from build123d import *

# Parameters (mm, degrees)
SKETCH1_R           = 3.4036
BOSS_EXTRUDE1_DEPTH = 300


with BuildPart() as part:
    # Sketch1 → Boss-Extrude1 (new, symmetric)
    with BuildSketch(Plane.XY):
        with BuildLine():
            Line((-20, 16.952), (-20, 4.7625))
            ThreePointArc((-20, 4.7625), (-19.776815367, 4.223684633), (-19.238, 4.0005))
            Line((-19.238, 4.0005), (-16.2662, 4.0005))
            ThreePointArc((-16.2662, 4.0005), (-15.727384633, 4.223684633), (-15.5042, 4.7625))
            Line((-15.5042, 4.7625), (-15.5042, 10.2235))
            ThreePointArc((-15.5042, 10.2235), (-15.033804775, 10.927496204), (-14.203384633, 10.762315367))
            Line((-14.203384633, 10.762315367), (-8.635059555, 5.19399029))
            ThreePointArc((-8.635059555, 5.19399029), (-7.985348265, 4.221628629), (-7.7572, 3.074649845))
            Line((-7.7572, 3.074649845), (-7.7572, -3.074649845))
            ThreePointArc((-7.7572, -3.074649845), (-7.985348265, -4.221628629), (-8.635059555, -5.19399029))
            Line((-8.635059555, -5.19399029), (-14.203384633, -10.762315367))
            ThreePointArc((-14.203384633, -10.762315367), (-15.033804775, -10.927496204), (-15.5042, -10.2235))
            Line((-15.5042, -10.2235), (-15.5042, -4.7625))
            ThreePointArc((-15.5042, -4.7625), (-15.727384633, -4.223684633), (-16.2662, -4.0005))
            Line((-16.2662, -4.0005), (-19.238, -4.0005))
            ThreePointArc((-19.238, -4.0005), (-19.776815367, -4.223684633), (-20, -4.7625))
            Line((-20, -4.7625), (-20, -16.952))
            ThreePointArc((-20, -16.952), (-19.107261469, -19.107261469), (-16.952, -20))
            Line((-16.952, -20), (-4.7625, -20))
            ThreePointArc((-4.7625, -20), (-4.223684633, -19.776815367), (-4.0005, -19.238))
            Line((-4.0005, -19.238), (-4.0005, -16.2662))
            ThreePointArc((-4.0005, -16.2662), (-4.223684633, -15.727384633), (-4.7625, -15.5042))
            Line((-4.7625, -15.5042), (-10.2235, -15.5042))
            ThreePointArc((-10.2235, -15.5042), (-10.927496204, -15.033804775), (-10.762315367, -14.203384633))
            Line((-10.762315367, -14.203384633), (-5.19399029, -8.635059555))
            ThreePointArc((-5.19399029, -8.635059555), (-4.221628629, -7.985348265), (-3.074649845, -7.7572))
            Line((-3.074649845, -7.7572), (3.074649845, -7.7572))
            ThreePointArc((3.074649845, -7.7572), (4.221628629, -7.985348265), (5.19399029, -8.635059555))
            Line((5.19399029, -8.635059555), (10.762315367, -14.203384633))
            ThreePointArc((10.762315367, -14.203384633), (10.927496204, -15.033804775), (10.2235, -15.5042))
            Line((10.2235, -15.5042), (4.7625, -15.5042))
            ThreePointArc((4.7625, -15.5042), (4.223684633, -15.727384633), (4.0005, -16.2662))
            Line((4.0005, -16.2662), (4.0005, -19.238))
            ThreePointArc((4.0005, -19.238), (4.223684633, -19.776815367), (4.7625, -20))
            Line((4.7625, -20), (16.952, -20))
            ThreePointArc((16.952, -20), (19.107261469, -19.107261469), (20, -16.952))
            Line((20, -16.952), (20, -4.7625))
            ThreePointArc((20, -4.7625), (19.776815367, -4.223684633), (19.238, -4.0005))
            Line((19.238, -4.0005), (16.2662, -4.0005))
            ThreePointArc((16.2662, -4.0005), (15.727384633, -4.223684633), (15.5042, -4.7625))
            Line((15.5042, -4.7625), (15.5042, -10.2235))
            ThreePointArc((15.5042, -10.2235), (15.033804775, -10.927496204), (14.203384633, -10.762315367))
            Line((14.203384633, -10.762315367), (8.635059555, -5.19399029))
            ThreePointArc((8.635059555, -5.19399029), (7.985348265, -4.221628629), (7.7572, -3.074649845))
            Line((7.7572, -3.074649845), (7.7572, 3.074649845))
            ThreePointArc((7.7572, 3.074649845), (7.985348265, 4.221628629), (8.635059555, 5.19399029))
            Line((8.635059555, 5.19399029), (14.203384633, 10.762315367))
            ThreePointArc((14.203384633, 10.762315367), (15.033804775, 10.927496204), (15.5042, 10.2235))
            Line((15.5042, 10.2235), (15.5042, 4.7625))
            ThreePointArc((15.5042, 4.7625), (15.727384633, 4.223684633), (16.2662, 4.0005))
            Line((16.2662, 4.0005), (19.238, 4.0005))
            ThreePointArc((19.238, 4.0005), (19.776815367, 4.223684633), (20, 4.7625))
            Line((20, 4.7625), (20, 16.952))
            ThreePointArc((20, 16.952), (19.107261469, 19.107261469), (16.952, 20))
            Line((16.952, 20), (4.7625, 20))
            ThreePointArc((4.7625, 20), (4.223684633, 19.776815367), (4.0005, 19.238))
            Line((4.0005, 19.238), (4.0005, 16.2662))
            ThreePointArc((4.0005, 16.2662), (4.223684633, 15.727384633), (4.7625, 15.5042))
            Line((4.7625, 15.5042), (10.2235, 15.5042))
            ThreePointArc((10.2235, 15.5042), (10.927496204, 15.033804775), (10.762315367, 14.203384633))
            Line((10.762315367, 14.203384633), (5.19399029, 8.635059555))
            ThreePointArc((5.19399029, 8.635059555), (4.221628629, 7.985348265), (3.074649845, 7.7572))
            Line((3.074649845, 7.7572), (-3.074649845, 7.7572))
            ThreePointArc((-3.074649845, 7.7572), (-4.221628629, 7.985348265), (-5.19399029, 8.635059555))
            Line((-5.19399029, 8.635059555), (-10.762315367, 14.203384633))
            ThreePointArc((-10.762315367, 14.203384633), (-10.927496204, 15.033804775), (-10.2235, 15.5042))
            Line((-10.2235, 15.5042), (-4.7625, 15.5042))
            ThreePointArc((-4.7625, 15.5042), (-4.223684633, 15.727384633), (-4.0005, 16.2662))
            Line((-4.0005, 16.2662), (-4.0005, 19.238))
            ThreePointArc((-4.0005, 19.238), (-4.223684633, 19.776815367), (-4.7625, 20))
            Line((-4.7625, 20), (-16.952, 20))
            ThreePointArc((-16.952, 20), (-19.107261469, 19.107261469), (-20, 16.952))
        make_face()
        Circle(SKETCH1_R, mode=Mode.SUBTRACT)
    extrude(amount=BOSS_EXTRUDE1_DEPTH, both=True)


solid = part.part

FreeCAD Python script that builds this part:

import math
import FreeCAD as App
import Part
import Sketcher
from FreeCAD import Vector
Q = App.Units.Quantity

doc = App.newDocument("Part")
params = doc.addObject("Spreadsheet::Sheet", "Params")
for row, (alias, value) in enumerate([
    ("sketch1_radius", "0.03 in"),
    ("sketch1_radius2", "0.12 in"),
    ("sketch1_diameter", "0.268 in"),
    ("sketch1_radius3", "0.118 in"),
    ("sketch1_width", "0.117 in"),
    ("pad1_length", "600 mm"),
], start=1):
    params.set(f"A{row}", alias)
    params.set(f"B{row}", "=" + value)
    params.setAlias(f"B{row}", alias)

body = doc.addObject("PartDesign::Body", "Body")

# Sketch on XY plane
sketch1 = body.newObject("Sketcher::SketchObject", "Sketch")
sketch1.AttachmentSupport = (doc.getObject("XY_Plane"), [""])
sketch1.MapMode = "FlatFace"
sketch1.addGeometry([
    Part.LineSegment(Vector(-20, 17, 0), Vector(-20, 4.8, 0)),  # 0
    Part.ArcOfCircle(Part.Circle(Vector(-19.2, 4.8, 0), Vector(0, 0, 1), 0.8), math.radians(-180), math.radians(-90)),  # 1
    Part.LineSegment(Vector(-19.2, 4, 0), Vector(-16.3, 4, 0)),  # 2
    Part.ArcOfCircle(Part.Circle(Vector(-16.3, 4.8, 0), Vector(0, 0, 1), 0.8), math.radians(-90), math.radians(0)),  # 3
    Part.LineSegment(Vector(-15.5, 4.8, 0), Vector(-15.5, 10.2, 0)),  # 4
    Part.ArcOfCircle(Part.Circle(Vector(-14.7, 10.2, 0), Vector(0, 0, 1), 0.8), math.radians(45), math.radians(180)),  # 5
    Part.LineSegment(Vector(-14.2, 10.8, 0), Vector(-8.6, 5.2, 0)),  # 6
    Part.ArcOfCircle(Part.Circle(Vector(-10.8, 3.1, 0), Vector(0, 0, 1), 3), math.radians(0), math.radians(45)),  # 7
    Part.LineSegment(Vector(-7.8, 3.1, 0), Vector(-7.8, -3.1, 0)),  # 8
    Part.ArcOfCircle(Part.Circle(Vector(-10.8, -3.1, 0), Vector(0, 0, 1), 3), math.radians(-45), math.radians(0)),  # 9
    Part.LineSegment(Vector(-8.6, -5.2, 0), Vector(-14.2, -10.8, 0)),  # 10
    Part.ArcOfCircle(Part.Circle(Vector(-14.7, -10.2, 0), Vector(0, 0, 1), 0.8), math.radians(180), math.radians(315)),  # 11
    Part.LineSegment(Vector(-15.5, -10.2, 0), Vector(-15.5, -4.8, 0)),  # 12
    Part.ArcOfCircle(Part.Circle(Vector(-16.3, -4.8, 0), Vector(0, 0, 1), 0.8), math.radians(0), math.radians(90)),  # 13
    Part.LineSegment(Vector(-16.3, -4, 0), Vector(-19.2, -4, 0)),  # 14
    Part.ArcOfCircle(Part.Circle(Vector(-19.2, -4.8, 0), Vector(0, 0, 1), 0.8), math.radians(90), math.radians(180)),  # 15
    Part.LineSegment(Vector(-20, -4.8, 0), Vector(-20, -17, 0)),  # 16
    Part.ArcOfCircle(Part.Circle(Vector(-17, -17, 0), Vector(0, 0, 1), 3), math.radians(180), math.radians(270)),  # 17
    Part.LineSegment(Vector(-17, -20, 0), Vector(-4.8, -20, 0)),  # 18
    Part.ArcOfCircle(Part.Circle(Vector(-4.8, -19.2, 0), Vector(0, 0, 1), 0.8), math.radians(-90), math.radians(0)),  # 19
    Part.LineSegment(Vector(-4, -19.2, 0), Vector(-4, -16.3, 0)),  # 20
    Part.ArcOfCircle(Part.Circle(Vector(-4.8, -16.3, 0), Vector(0, 0, 1), 0.8), math.radians(0), math.radians(90)),  # 21
    Part.LineSegment(Vector(-4.8, -15.5, 0), Vector(-10.2, -15.5, 0)),  # 22
    Part.ArcOfCircle(Part.Circle(Vector(-10.2, -14.7, 0), Vector(0, 0, 1), 0.8), math.radians(135), math.radians(270)),  # 23
    Part.LineSegment(Vector(-10.8, -14.2, 0), Vector(-5.2, -8.6, 0)),  # 24
    Part.ArcOfCircle(Part.Circle(Vector(-3.1, -10.8, 0), Vector(0, 0, 1), 3), math.radians(90), math.radians(135)),  # 25
    Part.LineSegment(Vector(-3.1, -7.8, 0), Vector(3.1, -7.8, 0)),  # 26
    Part.ArcOfCircle(Part.Circle(Vector(3.1, -10.8, 0), Vector(0, 0, 1), 3), math.radians(45), math.radians(90)),  # 27
    Part.LineSegment(Vector(5.2, -8.6, 0), Vector(10.8, -14.2, 0)),  # 28
    Part.ArcOfCircle(Part.Circle(Vector(10.2, -14.7, 0), Vector(0, 0, 1), 0.8), math.radians(-90), math.radians(45)),  # 29
    Part.LineSegment(Vector(10.2, -15.5, 0), Vector(4.8, -15.5, 0)),  # 30
    Part.ArcOfCircle(Part.Circle(Vector(4.8, -16.3, 0), Vector(0, 0, 1), 0.8), math.radians(90), math.radians(180)),  # 31
    Part.LineSegment(Vector(4, -16.3, 0), Vector(4, -19.2, 0)),  # 32
    Part.ArcOfCircle(Part.Circle(Vector(4.8, -19.2, 0), Vector(0, 0, 1), 0.8), math.radians(-180), math.radians(-90)),  # 33
    Part.LineSegment(Vector(4.8, -20, 0), Vector(17, -20, 0)),  # 34
    Part.ArcOfCircle(Part.Circle(Vector(17, -17, 0), Vector(0, 0, 1), 3), math.radians(-90), math.radians(0)),  # 35
    Part.LineSegment(Vector(20, -17, 0), Vector(20, -4.8, 0)),  # 36
    Part.ArcOfCircle(Part.Circle(Vector(19.2, -4.8, 0), Vector(0, 0, 1), 0.8), math.radians(0), math.radians(90)),  # 37
    Part.LineSegment(Vector(19.2, -4, 0), Vector(16.3, -4, 0)),  # 38
    Part.ArcOfCircle(Part.Circle(Vector(16.3, -4.8, 0), Vector(0, 0, 1), 0.8), math.radians(90), math.radians(180)),  # 39
    Part.LineSegment(Vector(15.5, -4.8, 0), Vector(15.5, -10.2, 0)),  # 40
    Part.ArcOfCircle(Part.Circle(Vector(14.7, -10.2, 0), Vector(0, 0, 1), 0.8), math.radians(-135), math.radians(0)),  # 41
    Part.LineSegment(Vector(14.2, -10.8, 0), Vector(8.6, -5.2, 0)),  # 42
    Part.ArcOfCircle(Part.Circle(Vector(10.8, -3.1, 0), Vector(0, 0, 1), 3), math.radians(180), math.radians(225)),  # 43
    Part.LineSegment(Vector(7.8, -3.1, 0), Vector(7.8, 3.1, 0)),  # 44
    Part.ArcOfCircle(Part.Circle(Vector(10.8, 3.1, 0), Vector(0, 0, 1), 3), math.radians(135), math.radians(180)),  # 45
    Part.LineSegment(Vector(8.6, 5.2, 0), Vector(14.2, 10.8, 0)),  # 46
    Part.ArcOfCircle(Part.Circle(Vector(14.7, 10.2, 0), Vector(0, 0, 1), 0.8), math.radians(0), math.radians(135)),  # 47
    Part.LineSegment(Vector(15.5, 10.2, 0), Vector(15.5, 4.8, 0)),  # 48
    Part.ArcOfCircle(Part.Circle(Vector(16.3, 4.8, 0), Vector(0, 0, 1), 0.8), math.radians(-180), math.radians(-90)),  # 49
    Part.LineSegment(Vector(16.3, 4, 0), Vector(19.2, 4, 0)),  # 50
    Part.ArcOfCircle(Part.Circle(Vector(19.2, 4.8, 0), Vector(0, 0, 1), 0.8), math.radians(-90), math.radians(0)),  # 51
    Part.LineSegment(Vector(20, 4.8, 0), Vector(20, 17, 0)),  # 52
    Part.ArcOfCircle(Part.Circle(Vector(17, 17, 0), Vector(0, 0, 1), 3), math.radians(0), math.radians(90)),  # 53
    Part.LineSegment(Vector(17, 20, 0), Vector(4.8, 20, 0)),  # 54
    Part.ArcOfCircle(Part.Circle(Vector(4.8, 19.2, 0), Vector(0, 0, 1), 0.8), math.radians(90), math.radians(180)),  # 55
    Part.LineSegment(Vector(4, 19.2, 0), Vector(4, 16.3, 0)),  # 56
    Part.ArcOfCircle(Part.Circle(Vector(4.8, 16.3, 0), Vector(0, 0, 1), 0.8), math.radians(-180), math.radians(-90)),  # 57
    Part.LineSegment(Vector(4.8, 15.5, 0), Vector(10.2, 15.5, 0)),  # 58
    Part.ArcOfCircle(Part.Circle(Vector(10.2, 14.7, 0), Vector(0, 0, 1), 0.8), math.radians(-45), math.radians(90)),  # 59
    Part.LineSegment(Vector(10.8, 14.2, 0), Vector(5.2, 8.6, 0)),  # 60
    Part.ArcOfCircle(Part.Circle(Vector(3.1, 10.8, 0), Vector(0, 0, 1), 3), math.radians(-90), math.radians(-45)),  # 61
    Part.LineSegment(Vector(3.1, 7.8, 0), Vector(-3.1, 7.8, 0)),  # 62
    Part.ArcOfCircle(Part.Circle(Vector(-3.1, 10.8, 0), Vector(0, 0, 1), 3), math.radians(-135), math.radians(-90)),  # 63
    Part.LineSegment(Vector(-5.2, 8.6, 0), Vector(-10.8, 14.2, 0)),  # 64
    Part.ArcOfCircle(Part.Circle(Vector(-10.2, 14.7, 0), Vector(0, 0, 1), 0.8), math.radians(90), math.radians(225)),  # 65
    Part.LineSegment(Vector(-10.2, 15.5, 0), Vector(-4.8, 15.5, 0)),  # 66
    Part.ArcOfCircle(Part.Circle(Vector(-4.8, 16.3, 0), Vector(0, 0, 1), 0.8), math.radians(-90), math.radians(0)),  # 67
    Part.LineSegment(Vector(-4, 16.3, 0), Vector(-4, 19.2, 0)),  # 68
    Part.ArcOfCircle(Part.Circle(Vector(-4.8, 19.2, 0), Vector(0, 0, 1), 0.8), math.radians(0), math.radians(90)),  # 69
    Part.LineSegment(Vector(-4.8, 20, 0), Vector(-17, 20, 0)),  # 70
    Part.ArcOfCircle(Part.Circle(Vector(-17, 17, 0), Vector(0, 0, 1), 3), math.radians(90), math.radians(180)),  # 71
    Part.Circle(Vector(0, 0, 0), Vector(0, 0, 1), 3.4),  # 72
], False)
sketch1.addConstraint([
    Sketcher.Constraint("Tangent", 0, 2, 1, 1),
    Sketcher.Constraint("Tangent", 1, 2, 2, 1),
    Sketcher.Constraint("Tangent", 2, 2, 3, 1),
    Sketcher.Constraint("Tangent", 3, 2, 4, 1),
    Sketcher.Constraint("Tangent", 4, 2, 5, 2),
    Sketcher.Constraint("Tangent", 5, 1, 6, 1),
    Sketcher.Constraint("Tangent", 6, 2, 7, 2),
    Sketcher.Constraint("Tangent", 7, 1, 8, 1),
    Sketcher.Constraint("Tangent", 8, 2, 9, 2),
    Sketcher.Constraint("Tangent", 9, 1, 10, 1),
    Sketcher.Constraint("Tangent", 10, 2, 11, 2),
    Sketcher.Constraint("Tangent", 11, 1, 12, 1),
    Sketcher.Constraint("Tangent", 12, 2, 13, 1),
    Sketcher.Constraint("Tangent", 13, 2, 14, 1),
    Sketcher.Constraint("Tangent", 14, 2, 15, 1),
    Sketcher.Constraint("Tangent", 15, 2, 16, 1),
    Sketcher.Constraint("Tangent", 16, 2, 17, 1),
    Sketcher.Constraint("Tangent", 17, 2, 18, 1),
    Sketcher.Constraint("Tangent", 18, 2, 19, 1),
    Sketcher.Constraint("Tangent", 19, 2, 20, 1),
    Sketcher.Constraint("Tangent", 20, 2, 21, 1),
    Sketcher.Constraint("Tangent", 21, 2, 22, 1),
    Sketcher.Constraint("Tangent", 22, 2, 23, 2),
    Sketcher.Constraint("Tangent", 23, 1, 24, 1),
    Sketcher.Constraint("Tangent", 24, 2, 25, 2),
    Sketcher.Constraint("Tangent", 25, 1, 26, 1),
    Sketcher.Constraint("Tangent", 26, 2, 27, 2),
    Sketcher.Constraint("Tangent", 27, 1, 28, 1),
    Sketcher.Constraint("Tangent", 28, 2, 29, 2),
    Sketcher.Constraint("Tangent", 29, 1, 30, 1),
    Sketcher.Constraint("Tangent", 30, 2, 31, 1),
    Sketcher.Constraint("Tangent", 31, 2, 32, 1),
    Sketcher.Constraint("Tangent", 32, 2, 33, 1),
    Sketcher.Constraint("Tangent", 33, 2, 34, 1),
    Sketcher.Constraint("Tangent", 34, 2, 35, 1),
    Sketcher.Constraint("Tangent", 35, 2, 36, 1),
    Sketcher.Constraint("Tangent", 36, 2, 37, 1),
    Sketcher.Constraint("Tangent", 37, 2, 38, 1),
    Sketcher.Constraint("Tangent", 38, 2, 39, 1),
    Sketcher.Constraint("Tangent", 39, 2, 40, 1),
    Sketcher.Constraint("Tangent", 40, 2, 41, 2),
    Sketcher.Constraint("Tangent", 41, 1, 42, 1),
    Sketcher.Constraint("Tangent", 42, 2, 43, 2),
    Sketcher.Constraint("Tangent", 43, 1, 44, 1),
    Sketcher.Constraint("Tangent", 44, 2, 45, 2),
    Sketcher.Constraint("Tangent", 45, 1, 46, 1),
    Sketcher.Constraint("Tangent", 46, 2, 47, 2),
    Sketcher.Constraint("Tangent", 47, 1, 48, 1),
    Sketcher.Constraint("Tangent", 48, 2, 49, 1),
    Sketcher.Constraint("Tangent", 49, 2, 50, 1),
    Sketcher.Constraint("Tangent", 50, 2, 51, 1),
    Sketcher.Constraint("Tangent", 51, 2, 52, 1),
    Sketcher.Constraint("Tangent", 52, 2, 53, 1),
    Sketcher.Constraint("Tangent", 53, 2, 54, 1),
    Sketcher.Constraint("Tangent", 54, 2, 55, 1),
    Sketcher.Constraint("Tangent", 55, 2, 56, 1),
    Sketcher.Constraint("Tangent", 56, 2, 57, 1),
    Sketcher.Constraint("Tangent", 57, 2, 58, 1),
    Sketcher.Constraint("Tangent", 58, 2, 59, 2),
    Sketcher.Constraint("Tangent", 59, 1, 60, 1),
    Sketcher.Constraint("Tangent", 60, 2, 61, 2),
    Sketcher.Constraint("Tangent", 61, 1, 62, 1),
    Sketcher.Constraint("Tangent", 62, 2, 63, 2),
    Sketcher.Constraint("Tangent", 63, 1, 64, 1),
    Sketcher.Constraint("Tangent", 64, 2, 65, 2),
    Sketcher.Constraint("Tangent", 65, 1, 66, 1),
    Sketcher.Constraint("Tangent", 66, 2, 67, 1),
    Sketcher.Constraint("Tangent", 67, 2, 68, 1),
    Sketcher.Constraint("Tangent", 68, 2, 69, 1),
    Sketcher.Constraint("Tangent", 69, 2, 70, 1),
    Sketcher.Constraint("Tangent", 70, 2, 71, 1),
    Sketcher.Constraint("Tangent", 71, 2, 0, 1),
    Sketcher.Constraint("Vertical", 0),
    Sketcher.Constraint("Horizontal", 2),
    Sketcher.Constraint("Vertical", 4),
    Sketcher.Constraint("Vertical", 8),
    Sketcher.Constraint("Vertical", 12),
    Sketcher.Constraint("Horizontal", 14),
    Sketcher.Constraint("Vertical", 16),
    Sketcher.Constraint("Horizontal", 18),
    Sketcher.Constraint("Vertical", 20),
    Sketcher.Constraint("Horizontal", 22),
    Sketcher.Constraint("Horizontal", 26),
    Sketcher.Constraint("Horizontal", 30),
    Sketcher.Constraint("Vertical", 32),
    Sketcher.Constraint("Horizontal", 34),
    Sketcher.Constraint("Vertical", 36),
    Sketcher.Constraint("Horizontal", 38),
    Sketcher.Constraint("Vertical", 40),
    Sketcher.Constraint("Vertical", 44),
    Sketcher.Constraint("Vertical", 48),
    Sketcher.Constraint("Horizontal", 50),
    Sketcher.Constraint("Vertical", 52),
    Sketcher.Constraint("Horizontal", 54),
    Sketcher.Constraint("Vertical", 56),
    Sketcher.Constraint("Horizontal", 58),
    Sketcher.Constraint("Horizontal", 62),
    Sketcher.Constraint("Horizontal", 66),
    Sketcher.Constraint("Vertical", 68),
    Sketcher.Constraint("Horizontal", 70),
    Sketcher.Constraint("Coincident", 72, 3, -1, 1),
    Sketcher.Constraint("Equal", 1, 3),
    Sketcher.Constraint("Equal", 3, 5),
    Sketcher.Constraint("Equal", 7, 9),
    Sketcher.Constraint("Equal", 5, 11),
    Sketcher.Constraint("Equal", 11, 13),
    Sketcher.Constraint("Equal", 13, 15),
    Sketcher.Constraint("Equal", 15, 19),
    Sketcher.Constraint("Equal", 19, 21),
    Sketcher.Constraint("Equal", 21, 23),
    Sketcher.Constraint("Equal", 9, 25),
    Sketcher.Constraint("Equal", 25, 27),
    Sketcher.Constraint("Equal", 23, 29),
    Sketcher.Constraint("Equal", 29, 31),
    Sketcher.Constraint("Equal", 31, 33),
    Sketcher.Constraint("Equal", 17, 35),
    Sketcher.Constraint("Equal", 33, 37),
    Sketcher.Constraint("Equal", 37, 39),
    Sketcher.Constraint("Equal", 39, 41),
    Sketcher.Constraint("Equal", 27, 43),
    Sketcher.Constraint("Equal", 43, 45),
    Sketcher.Constraint("Equal", 41, 47),
    Sketcher.Constraint("Equal", 47, 49),
    Sketcher.Constraint("Equal", 49, 51),
    Sketcher.Constraint("Equal", 35, 53),
    Sketcher.Constraint("Equal", 51, 55),
    Sketcher.Constraint("Equal", 55, 57),
    Sketcher.Constraint("Equal", 57, 59),
    Sketcher.Constraint("Equal", 45, 61),
    Sketcher.Constraint("Equal", 61, 63),
    Sketcher.Constraint("Equal", 59, 65),
    Sketcher.Constraint("Equal", 65, 67),
    Sketcher.Constraint("Equal", 67, 69),
    Sketcher.Constraint("Equal", 53, 71),
    Sketcher.Constraint("Symmetric", 1, 3, 37, 3, -1, 1),
    Sketcher.Constraint("Symmetric", 5, 3, 41, 3, -1, 1),
    Sketcher.Constraint("Symmetric", 7, 3, 43, 3, -1, 1),
    Sketcher.Constraint("Symmetric", 11, 3, 47, 3, -1, 1),
    Sketcher.Constraint("Symmetric", 15, 3, 51, 3, -1, 1),
    Sketcher.Constraint("Symmetric", 19, 3, 55, 3, -1, 1),
    Sketcher.Constraint("Symmetric", 23, 3, 59, 3, -1, 1),
    Sketcher.Constraint("Symmetric", 25, 3, 61, 3, -1, 1),
    Sketcher.Constraint("Symmetric", 29, 3, 65, 3, -1, 1),
    Sketcher.Constraint("Symmetric", 33, 3, 69, 3, -1, 1),
    Sketcher.Constraint("Symmetric", 23, 3, 29, 3, -2),
    Sketcher.Constraint("Symmetric", 19, 3, 33, 3, -2),
    Sketcher.Constraint("Symmetric", 15, 3, 37, 3, -2),
    Sketcher.Constraint("Symmetric", 11, 3, 41, 3, -2),
    Sketcher.Constraint("Perpendicular", 6, 10),
    Sketcher.Constraint("Parallel", 10, 24),
    Sketcher.Constraint("Perpendicular", 24, 28),
    Sketcher.Constraint("Perpendicular", 42, 46),
    Sketcher.Constraint("Perpendicular", 60, 64),
    Sketcher.Constraint("Horizontal", 9, 3, 43, 3),
    Sketcher.Constraint("Equal", 70, 0),
    Sketcher.Constraint("Equal", 66, 4),
    Sketcher.Constraint("Equal", 62, 8),
    Sketcher.Constraint("Equal", 50, 20),
    Sketcher.Constraint("Equal", 10, 24),
    Sketcher.Constraint("Radius", 1, Q("0.03 in")),
    Sketcher.Constraint("Radius", 17, Q("0.12 in")),
    Sketcher.Constraint("Diameter", 72, Q("0.268 in")),
    Sketcher.Constraint("Radius", 7, Q("0.118 in")),
    Sketcher.Constraint("DistanceX", 2, 1, 2, 2, Q("0.117 in")),
    Sketcher.Constraint("DistanceX", 22, 2, 22, 1, Q("0.215 in")),
    Sketcher.Constraint("DistanceY", -1, 1, 1, 3, Q("0.1875 in")),
    Sketcher.Constraint("DistanceX", 18, 1, 18, 2, Q("12.1895 mm")),
    Sketcher.Constraint("DistanceX", 26, 1, 26, 2, Q("6.1493 mm")),
])
sketch1.setExpression("Constraints[159]", "Params.sketch1_radius")
sketch1.setExpression("Constraints[160]", "Params.sketch1_radius2")
sketch1.setExpression("Constraints[161]", "Params.sketch1_diameter")
sketch1.setExpression("Constraints[162]", "Params.sketch1_radius3")
sketch1.setExpression("Constraints[163]", "Params.sketch1_width")
pad1 = body.newObject("PartDesign::Pad", "Pad")
pad1.Profile = sketch1
pad1.setExpression("Length", "Params.pad1_length")
pad1.Midplane = True

doc.recompute()
